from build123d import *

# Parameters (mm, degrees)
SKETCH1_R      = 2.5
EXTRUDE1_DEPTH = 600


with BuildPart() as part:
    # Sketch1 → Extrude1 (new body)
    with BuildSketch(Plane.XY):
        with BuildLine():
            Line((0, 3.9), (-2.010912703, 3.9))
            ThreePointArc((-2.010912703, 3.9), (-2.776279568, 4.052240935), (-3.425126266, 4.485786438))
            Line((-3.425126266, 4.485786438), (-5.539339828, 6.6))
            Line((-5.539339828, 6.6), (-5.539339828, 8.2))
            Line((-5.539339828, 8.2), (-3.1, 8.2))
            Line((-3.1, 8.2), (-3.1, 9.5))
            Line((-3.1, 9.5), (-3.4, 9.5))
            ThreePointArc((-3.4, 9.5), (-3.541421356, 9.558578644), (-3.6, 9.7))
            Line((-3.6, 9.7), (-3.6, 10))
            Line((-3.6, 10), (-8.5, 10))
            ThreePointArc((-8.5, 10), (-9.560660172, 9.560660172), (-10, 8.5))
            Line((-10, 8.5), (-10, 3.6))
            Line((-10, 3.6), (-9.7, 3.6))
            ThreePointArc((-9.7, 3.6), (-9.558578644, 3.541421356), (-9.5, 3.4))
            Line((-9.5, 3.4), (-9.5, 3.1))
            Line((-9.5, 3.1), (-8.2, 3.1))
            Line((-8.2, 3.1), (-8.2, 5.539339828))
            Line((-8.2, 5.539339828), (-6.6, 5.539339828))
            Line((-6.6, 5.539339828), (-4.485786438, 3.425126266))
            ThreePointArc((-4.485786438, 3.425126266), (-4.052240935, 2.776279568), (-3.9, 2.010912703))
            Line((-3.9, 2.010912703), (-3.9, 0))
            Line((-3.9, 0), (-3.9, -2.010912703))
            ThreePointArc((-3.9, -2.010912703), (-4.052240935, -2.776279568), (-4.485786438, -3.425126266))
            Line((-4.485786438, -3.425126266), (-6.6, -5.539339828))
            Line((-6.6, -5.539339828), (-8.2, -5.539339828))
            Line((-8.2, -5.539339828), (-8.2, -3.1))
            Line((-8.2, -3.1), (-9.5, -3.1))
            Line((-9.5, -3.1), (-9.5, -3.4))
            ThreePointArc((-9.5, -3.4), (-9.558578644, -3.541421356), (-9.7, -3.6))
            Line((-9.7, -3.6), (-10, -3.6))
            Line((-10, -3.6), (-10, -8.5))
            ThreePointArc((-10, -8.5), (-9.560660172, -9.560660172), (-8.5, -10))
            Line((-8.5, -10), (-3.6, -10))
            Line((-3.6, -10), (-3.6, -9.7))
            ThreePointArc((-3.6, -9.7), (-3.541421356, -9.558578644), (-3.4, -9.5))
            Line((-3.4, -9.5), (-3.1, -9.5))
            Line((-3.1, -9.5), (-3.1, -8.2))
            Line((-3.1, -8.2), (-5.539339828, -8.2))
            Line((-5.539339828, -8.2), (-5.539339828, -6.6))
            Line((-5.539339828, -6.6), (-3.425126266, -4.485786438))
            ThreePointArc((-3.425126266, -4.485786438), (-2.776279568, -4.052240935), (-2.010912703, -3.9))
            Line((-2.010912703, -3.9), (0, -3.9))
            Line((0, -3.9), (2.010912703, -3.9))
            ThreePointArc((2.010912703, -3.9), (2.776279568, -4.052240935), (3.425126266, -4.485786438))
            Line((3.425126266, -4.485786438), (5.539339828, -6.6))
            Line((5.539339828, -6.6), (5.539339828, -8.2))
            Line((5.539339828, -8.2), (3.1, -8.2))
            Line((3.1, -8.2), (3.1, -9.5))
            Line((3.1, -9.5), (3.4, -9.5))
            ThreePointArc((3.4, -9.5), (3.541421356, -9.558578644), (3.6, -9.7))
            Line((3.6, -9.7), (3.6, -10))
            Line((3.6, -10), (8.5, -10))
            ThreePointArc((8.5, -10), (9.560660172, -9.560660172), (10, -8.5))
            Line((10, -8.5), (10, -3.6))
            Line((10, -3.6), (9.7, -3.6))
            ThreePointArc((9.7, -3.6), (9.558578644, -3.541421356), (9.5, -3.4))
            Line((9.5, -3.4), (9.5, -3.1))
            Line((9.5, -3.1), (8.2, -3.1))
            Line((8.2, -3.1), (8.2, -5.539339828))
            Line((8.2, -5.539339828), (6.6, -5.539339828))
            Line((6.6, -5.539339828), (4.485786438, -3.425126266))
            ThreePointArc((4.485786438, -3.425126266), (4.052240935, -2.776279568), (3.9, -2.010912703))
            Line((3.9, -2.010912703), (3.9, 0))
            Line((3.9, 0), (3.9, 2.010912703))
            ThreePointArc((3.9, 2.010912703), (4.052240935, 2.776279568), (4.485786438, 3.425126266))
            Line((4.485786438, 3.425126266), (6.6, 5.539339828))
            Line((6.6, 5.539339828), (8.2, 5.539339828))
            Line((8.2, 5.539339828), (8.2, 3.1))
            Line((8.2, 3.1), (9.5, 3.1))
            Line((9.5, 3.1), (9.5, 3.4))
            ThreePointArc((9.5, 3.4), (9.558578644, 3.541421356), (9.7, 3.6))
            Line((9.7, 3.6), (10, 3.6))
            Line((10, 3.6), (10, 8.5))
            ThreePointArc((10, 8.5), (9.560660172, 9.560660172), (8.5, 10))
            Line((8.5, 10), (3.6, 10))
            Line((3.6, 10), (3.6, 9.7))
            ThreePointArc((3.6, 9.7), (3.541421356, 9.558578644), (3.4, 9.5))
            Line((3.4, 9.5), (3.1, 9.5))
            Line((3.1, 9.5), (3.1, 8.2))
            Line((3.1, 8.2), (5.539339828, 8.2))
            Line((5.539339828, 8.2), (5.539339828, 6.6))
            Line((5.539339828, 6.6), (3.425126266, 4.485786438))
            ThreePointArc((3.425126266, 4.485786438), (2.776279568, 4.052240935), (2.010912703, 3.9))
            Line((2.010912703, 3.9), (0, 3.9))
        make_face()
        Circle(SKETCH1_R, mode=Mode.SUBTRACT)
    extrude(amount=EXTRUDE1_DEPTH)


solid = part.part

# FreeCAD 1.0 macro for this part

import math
import FreeCAD as App
import Part
import Sketcher
from FreeCAD import Vector
Q = App.Units.Quantity

doc = App.newDocument("Part")
body = doc.addObject("PartDesign::Body", "Body")

sketch1 = body.newObject("Sketcher::SketchObject", "Sketch")
sketch1.AttachmentSupport = (doc.getObject("XY_Plane"), [""])
sketch1.MapMode = "FlatFace"
sketch1.addGeometry([
    Part.ArcOfCircle(Part.Circle(Vector(-2.01, 5.9, 0), Vector(0, 0, 1), 2), math.radians(-135), math.radians(-90)),
    Part.LineSegment(Vector(-3.43, 4.49, 0), Vector(-5.54, 6.6, 0)),
    Part.LineSegment(Vector(-5.54, 6.6, 0), Vector(-5.54, 8.2, 0)),
    Part.LineSegment(Vector(-5.54, 8.2, 0), Vector(-3.1, 8.2, 0)),
    Part.LineSegment(Vector(-3.1, 8.2, 0), Vector(-3.1, 9.5, 0)),
    Part.LineSegment(Vector(-3.1, 9.5, 0), Vector(-3.4, 9.5, 0)),
    Part.ArcOfCircle(Part.Circle(Vector(-3.4, 9.7, 0), Vector(0, 0, 1), 0.2), math.radians(-180), math.radians(-90)),
    Part.LineSegment(Vector(-3.6, 9.7, 0), Vector(-3.6, 10, 0)),
    Part.LineSegment(Vector(-3.6, 10, 0), Vector(-8.5, 10, 0)),
    Part.ArcOfCircle(Part.Circle(Vector(-8.5, 8.5, 0), Vector(0, 0, 1), 1.5), math.radians(90), math.radians(180)),
    Part.LineSegment(Vector(-10, 8.5, 0), Vector(-10, 3.6, 0)),
    Part.LineSegment(Vector(-10, 3.6, 0), Vector(-9.7, 3.6, 0)),
    Part.ArcOfCircle(Part.Circle(Vector(-9.7, 3.4, 0), Vector(0, 0, 1), 0.2), math.radians(0), math.radians(90)),
    Part.LineSegment(Vector(-9.5, 3.4, 0), Vector(-9.5, 3.1, 0)),
    Part.LineSegment(Vector(-9.5, 3.1, 0), Vector(-8.2, 3.1, 0)),
    Part.LineSegment(Vector(-8.2, 3.1, 0), Vector(-8.2, 5.54, 0)),
    Part.LineSegment(Vector(-8.2, 5.54, 0), Vector(-6.6, 5.54, 0)),
    Part.LineSegment(Vector(-6.6, 5.54, 0), Vector(-4.49, 3.43, 0)),
    Part.ArcOfCircle(Part.Circle(Vector(-5.9, 2.01, 0), Vector(0, 0, 1), 2), math.radians(0), math.radians(45)),
    Part.LineSegment(Vector(-3.9, 2.01, 0), Vector(-3.9, -2.01, 0)),
    Part.ArcOfCircle(Part.Circle(Vector(-5.9, -2.01, 0), Vector(0, 0, 1), 2), math.radians(-45), math.radians(0)),
    Part.LineSegment(Vector(-4.49, -3.43, 0), Vector(-6.6, -5.54, 0)),
    Part.LineSegment(Vector(-6.6, -5.54, 0), Vector(-8.2, -5.54, 0)),
    Part.LineSegment(Vector(-8.2, -5.54, 0), Vector(-8.2, -3.1, 0)),
    Part.LineSegment(Vector(-8.2, -3.1, 0), Vector(-9.5, -3.1, 0)),
    Part.LineSegment(Vector(-9.5, -3.1, 0), Vector(-9.5, -3.4, 0)),
    Part.ArcOfCircle(Part.Circle(Vector(-9.7, -3.4, 0), Vector(0, 0, 1), 0.2), math.radians(-90), math.radians(0)),
    Part.LineSegment(Vector(-9.7, -3.6, 0), Vector(-10, -3.6, 0)),
    Part.LineSegment(Vector(-10, -3.6, 0), Vector(-10, -8.5, 0)),
    Part.ArcOfCircle(Part.Circle(Vector(-8.5, -8.5, 0), Vector(0, 0, 1), 1.5), math.radians(180), math.radians(270)),
    Part.LineSegment(Vector(-8.5, -10, 0), Vector(-3.6, -10, 0)),
    Part.LineSegment(Vector(-3.6, -10, 0), Vector(-3.6, -9.7, 0)),
    Part.ArcOfCircle(Part.Circle(Vector(-3.4, -9.7, 0), Vector(0, 0, 1), 0.2), math.radians(90), math.radians(180)),
    Part.LineSegment(Vector(-3.4, -9.5, 0), Vector(-3.1, -9.5, 0)),
    Part.LineSegment(Vector(-3.1, -9.5, 0), Vector(-3.1, -8.2, 0)),
    Part.LineSegment(Vector(-3.1, -8.2, 0), Vector(-5.54, -8.2, 0)),
    Part.LineSegment(Vector(-5.54, -8.2, 0), Vector(-5.54, -6.6, 0)),
    Part.LineSegment(Vector(-5.54, -6.6, 0), Vector(-3.43, -4.49, 0)),
    Part.ArcOfCircle(Part.Circle(Vector(-2.01, -5.9, 0), Vector(0, 0, 1), 2), math.radians(90), math.radians(135)),
    Part.LineSegment(Vector(-2.01, -3.9, 0), Vector(2.01, -3.9, 0)),
    Part.ArcOfCircle(Part.Circle(Vector(2.01, -5.9, 0), Vector(0, 0, 1), 2), math.radians(45), math.radians(90)),
    Part.LineSegment(Vector(3.43, -4.49, 0), Vector(5.54, -6.6, 0)),
    Part.LineSegment(Vector(5.54, -6.6, 0), Vector(5.54, -8.2, 0)),
    Part.LineSegment(Vector(5.54, -8.2, 0), Vector(3.1, -8.2, 0)),
    Part.LineSegment(Vector(3.1, -8.2, 0), Vector(3.1, -9.5, 0)),
    Part.LineSegment(Vector(3.1, -9.5, 0), Vector(3.4, -9.5, 0)),
    Part.ArcOfCircle(Part.Circle(Vector(3.4, -9.7, 0), Vector(0, 0, 1), 0.2), math.radians(0), math.radians(90)),
    Part.LineSegment(Vector(3.6, -9.7, 0), Vector(3.6, -10, 0)),
    Part.LineSegment(Vector(3.6, -10, 0), Vector(8.5, -10, 0)),
    Part.ArcOfCircle(Part.Circle(Vector(8.5, -8.5, 0), Vector(0, 0, 1), 1.5), math.radians(-90), math.radians(0)),
    Part.LineSegment(Vector(10, -8.5, 0), Vector(10, -3.6, 0)),
    Part.LineSegment(Vector(10, -3.6, 0), Vector(9.7, -3.6, 0)),
    Part.ArcOfCircle(Part.Circle(Vector(9.7, -3.4, 0), Vector(0, 0, 1), 0.2), math.radians(-180), math.radians(-90)),
    Part.LineSegment(Vector(9.5, -3.4, 0), Vector(9.5, -3.1, 0)),
    Part.LineSegment(Vector(9.5, -3.1, 0), Vector(8.2, -3.1, 0)),
    Part.LineSegment(Vector(8.2, -3.1, 0), Vector(8.2, -5.54, 0)),
    Part.LineSegment(Vector(8.2, -5.54, 0), Vector(6.6, -5.54, 0)),
    Part.LineSegment(Vector(6.6, -5.54, 0), Vector(4.49, -3.43, 0)),
    Part.ArcOfCircle(Part.Circle(Vector(5.9, -2.01, 0), Vector(0, 0, 1), 2), math.radians(180), math.radians(225)),
    Part.LineSegment(Vector(3.9, -2.01, 0), Vector(3.9, 2.01, 0)),
    Part.ArcOfCircle(Part.Circle(Vector(5.9, 2.01, 0), Vector(0, 0, 1), 2), math.radians(135), math.radians(180)),
    Part.LineSegment(Vector(4.49, 3.43, 0), Vector(6.6, 5.54, 0)),
    Part.LineSegment(Vector(6.6, 5.54, 0), Vector(8.2, 5.54, 0)),
    Part.LineSegment(Vector(8.2, 5.54, 0), Vector(8.2, 3.1, 0)),
    Part.LineSegment(Vector(8.2, 3.1, 0), Vector(9.5, 3.1, 0)),
    Part.LineSegment(Vector(9.5, 3.1, 0), Vector(9.5, 3.4, 0)),
    Part.ArcOfCircle(Part.Circle(Vector(9.7, 3.4, 0), Vector(0, 0, 1), 0.2), math.radians(90), math.radians(180)),
    Part.LineSegment(Vector(9.7, 3.6, 0), Vector(10, 3.6, 0)),
    Part.LineSegment(Vector(10, 3.6, 0), Vector(10, 8.5, 0)),
    Part.ArcOfCircle(Part.Circle(Vector(8.5, 8.5, 0), Vector(0, 0, 1), 1.5), math.radians(0), math.radians(90)),
    Part.LineSegment(Vector(8.5, 10, 0), Vector(3.6, 10, 0)),
    Part.LineSegment(Vector(3.6, 10, 0), Vector(3.6, 9.7, 0)),
    Part.ArcOfCircle(Part.Circle(Vector(3.4, 9.7, 0), Vector(0, 0, 1), 0.2), math.radians(-90), math.radians(0)),
    Part.LineSegment(Vector(3.4, 9.5, 0), Vector(3.1, 9.5, 0)),
    Part.LineSegment(Vector(3.1, 9.5, 0), Vector(3.1, 8.2, 0)),
    Part.LineSegment(Vector(3.1, 8.2, 0), Vector(5.54, 8.2, 0)),
    Part.LineSegment(Vector(5.54, 8.2, 0), Vector(5.54, 6.6, 0)),
    Part.LineSegment(Vector(5.54, 6.6, 0), Vector(3.43, 4.49, 0)),
    Part.ArcOfCircle(Part.Circle(Vector(2.01, 5.9, 0), Vector(0, 0, 1), 2), math.radians(-90), math.radians(-45)),
    Part.LineSegment(Vector(2.01, 3.9, 0), Vector(-2.01, 3.9, 0)),
    Part.Circle(Vector(0, 0, 0), Vector(0, 0, 1), 2.5),
], False)
sketch1.addConstraint([
    Sketcher.Constraint("Tangent", 0, 1, 1, 1),
    Sketcher.Constraint("Coincident", 1, 2, 2, 1),
    Sketcher.Constraint("Coincident", 2, 2, 3, 1),
    Sketcher.Constraint("Coincident", 3, 2, 4, 1),
    Sketcher.Constraint("Coincident", 4, 2, 5, 1),
    Sketcher.Constraint("Tangent", 5, 2, 6, 2),
    Sketcher.Constraint("Tangent", 6, 1, 7, 1),
    Sketcher.Constraint("Coincident", 7, 2, 8, 1),
    Sketcher.Constraint("Tangent", 8, 2, 9, 1),
    Sketcher.Constraint("Tangent", 9, 2, 10, 1),
    Sketcher.Constraint("Coincident", 10, 2, 11, 1),
    Sketcher.Constraint("Tangent", 11, 2, 12, 2),
    Sketcher.Constraint("Tangent", 12, 1, 13, 1),
    Sketcher.Constraint("Coincident", 13, 2, 14, 1),
    Sketcher.Constraint("Coincident", 14, 2, 15, 1),
    Sketcher.Constraint("Coincident", 15, 2, 16, 1),
    Sketcher.Constraint("Coincident", 16, 2, 17, 1),
    Sketcher.Constraint("Tangent", 17, 2, 18, 2),
    Sketcher.Constraint("Tangent", 18, 1, 19, 1),
    Sketcher.Constraint("Tangent", 19, 2, 20, 2),
    Sketcher.Constraint("Tangent", 20, 1, 21, 1),
    Sketcher.Constraint("Coincident", 21, 2, 22, 1),
    Sketcher.Constraint("Coincident", 22, 2, 23, 1),
    Sketcher.Constraint("Coincident", 23, 2, 24, 1),
    Sketcher.Constraint("Coincident", 24, 2, 25, 1),
    Sketcher.Constraint("Tangent", 25, 2, 26, 2),
    Sketcher.Constraint("Tangent", 26, 1, 27, 1),
    Sketcher.Constraint("Coincident", 27, 2, 28, 1),
    Sketcher.Constraint("Tangent", 28, 2, 29, 1),
    Sketcher.Constraint("Tangent", 29, 2, 30, 1),
    Sketcher.Constraint("Coincident", 30, 2, 31, 1),
    Sketcher.Constraint("Tangent", 31, 2, 32, 2),
    Sketcher.Constraint("Tangent", 32, 1, 33, 1),
    Sketcher.Constraint("Coincident", 33, 2, 34, 1),
    Sketcher.Constraint("Coincident", 34, 2, 35, 1),
    Sketcher.Constraint("Coincident", 35, 2, 36, 1),
    Sketcher.Constraint("Coincident", 36, 2, 37, 1),
    Sketcher.Constraint("Tangent", 37, 2, 38, 2),
    Sketcher.Constraint("Tangent", 38, 1, 39, 1),
    Sketcher.Constraint("Tangent", 39, 2, 40, 2),
    Sketcher.Constraint("Tangent", 40, 1, 41, 1),
    Sketcher.Constraint("Coincident", 41, 2, 42, 1),
    Sketcher.Constraint("Coincident", 42, 2, 43, 1),
    Sketcher.Constraint("Coincident", 43, 2, 44, 1),
    Sketcher.Constraint("Coincident", 44, 2, 45, 1),
    Sketcher.Constraint("Tangent", 45, 2, 46, 2),
    Sketcher.Constraint("Tangent", 46, 1, 47, 1),
    Sketcher.Constraint("Coincident", 47, 2, 48, 1),
    Sketcher.Constraint("Tangent", 48, 2, 49, 1),
    Sketcher.Constraint("Tangent", 49, 2, 50, 1),
    Sketcher.Constraint("Coincident", 50, 2, 51, 1),
    Sketcher.Constraint("Tangent", 51, 2, 52, 2),
    Sketcher.Constraint("Tangent", 52, 1, 53, 1),
    Sketcher.Constraint("Coincident", 53, 2, 54, 1),
    Sketcher.Constraint("Coincident", 54, 2, 55, 1),
    Sketcher.Constraint("Coincident", 55, 2, 56, 1),
    Sketcher.Constraint("Coincident", 56, 2, 57, 1),
    Sketcher.Constraint("Tangent", 57, 2, 58, 2),
    Sketcher.Constraint("Tangent", 58, 1, 59, 1),
    Sketcher.Constraint("Tangent", 59, 2, 60, 2),
    Sketcher.Constraint("Tangent", 60, 1, 61, 1),
    Sketcher.Constraint("Coincident", 61, 2, 62, 1),
    Sketcher.Constraint("Coincident", 62, 2, 63, 1),
    Sketcher.Constraint("Coincident", 63, 2, 64, 1),
    Sketcher.Constraint("Coincident", 64, 2, 65, 1),
    Sketcher.Constraint("Tangent", 65, 2, 66, 2),
    Sketcher.Constraint("Tangent", 66, 1, 67, 1),
    Sketcher.Constraint("Coincident", 67, 2, 68, 1),
    Sketcher.Constraint("Tangent", 68, 2, 69, 1),
    Sketcher.Constraint("Tangent", 69, 2, 70, 1),
    Sketcher.Constraint("Coincident", 70, 2, 71, 1),
    Sketcher.Constraint("Tangent", 71, 2, 72, 2),
    Sketcher.Constraint("Tangent", 72, 1, 73, 1),
    Sketcher.Constraint("Coincident", 73, 2, 74, 1),
    Sketcher.Constraint("Coincident", 74, 2, 75, 1),
    Sketcher.Constraint("Coincident", 75, 2, 76, 1),
    Sketcher.Constraint("Coincident", 76, 2, 77, 1),
    Sketcher.Constraint("Tangent", 77, 2, 78, 2),
    Sketcher.Constraint("Tangent", 78, 1, 79, 1),
    Sketcher.Constraint("Tangent", 79, 2, 0, 2),
    Sketcher.Constraint("Vertical", 2),
    Sketcher.Constraint("Horizontal", 3),
    Sketcher.Constraint("Vertical", 4),
    Sketcher.Constraint("Horizontal", 5),
    Sketcher.Constraint("Vertical", 7),
    Sketcher.Constraint("Horizontal", 8),
    Sketcher.Constraint("Vertical", 10),
    Sketcher.Constraint("Horizontal", 11),
    Sketcher.Constraint("Vertical", 13),
    Sketcher.Constraint("Horizontal", 14),
    Sketcher.Constraint("Vertical", 15),
    Sketcher.Constraint("Horizontal", 16),
    Sketcher.Constraint("Vertical", 19),
    Sketcher.Constraint("Horizontal", 22),
    Sketcher.Constraint("Vertical", 23),
    Sketcher.Constraint("Horizontal", 24),
    Sketcher.Constraint("Vertical", 25),
    Sketcher.Constraint("Horizontal", 27),
    Sketcher.Constraint("Vertical", 28),
    Sketcher.Constraint("Horizontal", 30),
    Sketcher.Constraint("Vertical", 31),
    Sketcher.Constraint("Horizontal", 33),
    Sketcher.Constraint("Vertical", 34),
    Sketcher.Constraint("Horizontal", 35),
    Sketcher.Constraint("Vertical", 36),
    Sketcher.Constraint("Horizontal", 39),
    Sketcher.Constraint("Vertical", 42),
    Sketcher.Constraint("Horizontal", 43),
    Sketcher.Constraint("Vertical", 44),
    Sketcher.Constraint("Horizontal", 45),
    Sketcher.Constraint("Vertical", 47),
    Sketcher.Constraint("Horizontal", 48),
    Sketcher.Constraint("Vertical", 50),
    Sketcher.Constraint("Horizontal", 51),
    Sketcher.Constraint("Vertical", 53),
    Sketcher.Constraint("Horizontal", 54),
    Sketcher.Constraint("Vertical", 55),
    Sketcher.Constraint("Horizontal", 56),
    Sketcher.Constraint("Vertical", 59),
    Sketcher.Constraint("Horizontal", 62),
    Sketcher.Constraint("Vertical", 63),
    Sketcher.Constraint("Horizontal", 64),
    Sketcher.Constraint("Vertical", 65),
    Sketcher.Constraint("Horizontal", 67),
    Sketcher.Constraint("Vertical", 68),
    Sketcher.Constraint("Horizontal", 70),
    Sketcher.Constraint("Vertical", 71),
    Sketcher.Constraint("Horizontal", 73),
    Sketcher.Constraint("Vertical", 74),
    Sketcher.Constraint("Horizontal", 75),
    Sketcher.Constraint("Vertical", 76),
    Sketcher.Constraint("Horizontal", 79),
    Sketcher.Constraint("Coincident", 80, 3, -1, 1),
    Sketcher.Constraint("Equal", 6, 12),
    Sketcher.Constraint("Equal", 0, 18),
    Sketcher.Constraint("Equal", 18, 20),
    Sketcher.Constraint("Equal", 12, 26),
    Sketcher.Constraint("Equal", 9, 29),
    Sketcher.Constraint("Equal", 26, 32),
    Sketcher.Constraint("Equal", 20, 38),
    Sketcher.Constraint("Equal", 38, 40),
    Sketcher.Constraint("Equal", 32, 46),
    Sketcher.Constraint("Equal", 29, 49),
    Sketcher.Constraint("Equal", 46, 52),
    Sketcher.Constraint("Equal", 40, 58),
    Sketcher.Constraint("Equal", 58, 60),
    Sketcher.Constraint("Equal", 52, 66),
    Sketcher.Constraint("Equal", 49, 69),
    Sketcher.Constraint("Equal", 66, 72),
    Sketcher.Constraint("Equal", 60, 78),
    Sketcher.Constraint("Symmetric", 0, 3, 40, 3, -1, 1),
    Sketcher.Constraint("Symmetric", 6, 3, 46, 3, -1, 1),
    Sketcher.Constraint("Symmetric", 9, 3, 49, 3, -1, 1),
    Sketcher.Constraint("Symmetric", 12, 3, 52, 3, -1, 1),
    Sketcher.Constraint("Symmetric", 18, 3, 58, 3, -1, 1),
    Sketcher.Constraint("Symmetric", 26, 3, 66, 3, -1, 1),
    Sketcher.Constraint("Symmetric", 29, 3, 69, 3, -1, 1),
    Sketcher.Constraint("Symmetric", 32, 3, 72, 3, -1, 1),
    Sketcher.Constraint("Symmetric", 1, 2, 41, 2, -1, 1),
    Sketcher.Constraint("Symmetric", 3, 2, 43, 2, -1, 1),
    Sketcher.Constraint("Symmetric", 14, 2, 54, 2, -1, 1),
    Sketcher.Constraint("Symmetric", 16, 2, 56, 2, -1, 1),
    Sketcher.Constraint("Symmetric", 20, 1, 60, 1, -1, 1),
    Sketcher.Constraint("Symmetric", 22, 2, 62, 2, -1, 1),
    Sketcher.Constraint("Symmetric", 34, 2, 74, 2, -1, 1),
    Sketcher.Constraint("Symmetric", 36, 2, 76, 2, -1, 1),
    Sketcher.Constraint("Symmetric", 32, 3, 46, 3, -2),
    Sketcher.Constraint("Symmetric", 29, 3, 49, 3, -2),
    Sketcher.Constraint("Symmetric", 26, 3, 52, 3, -2),
    Sketcher.Constraint("Symmetric", 37, 2, 40, 1, -2),
    Sketcher.Constraint("Symmetric", 35, 2, 42, 2, -2),
    Sketcher.Constraint("Symmetric", 23, 2, 54, 2, -2),
    Sketcher.Constraint("Symmetric", 21, 2, 56, 2, -2),
    Sketcher.Constraint("Parallel", 1, 17),
    Sketcher.Constraint("Perpendicular", 17, 21),
    Sketcher.Constraint("Parallel", 21, 37),
    Sketcher.Constraint("Parallel", 61, 77),
    Sketcher.Constraint("Horizontal", 14, 2, 63, 2),
    Sketcher.Constraint("Vertical", 4, 2, 33, 2),
    Sketcher.Constraint("Equal", 5, 11),
    Sketcher.Constraint("Equal", 62, 2),
    Sketcher.Constraint("Equal", 64, 4),
    Sketcher.Constraint("Equal", 73, 7),
    Sketcher.Constraint("Equal", 70, 10),
    Sketcher.Constraint("Equal", 7, 13),
    Sketcher.Constraint("Equal", 75, 15),
    Sketcher.Constraint("Equal", 79, 19),
    Sketcher.Constraint("Equal", 1, 17),
    Sketcher.Constraint("Diameter", 80, Q("5 mm")),
    Sketcher.Constraint("Radius", 0, Q("2 mm")),
    Sketcher.Constraint("Radius", 6, Q("0.2 mm")),
    Sketcher.Constraint("Radius", 9, Q("1.5 mm")),
    Sketcher.Constraint("DistanceX", 5, 2, 5, 1, Q("0.3 mm")),
    Sketcher.Constraint("DistanceX", 8, 2, 8, 1, Q("4.9 mm")),
    Sketcher.Constraint("DistanceX", 14, 1, 14, 2, Q("1.3 mm")),
    Sketcher.Constraint("DistanceX", 16, 1, 16, 2, Q("1.6 mm")),
    Sketcher.Constraint("DistanceY", -1, 1, 7, 2, Q("10 mm")),
    Sketcher.Constraint("DistanceY", -1, 1, 0, 3, Q("5.9 mm")),
    Sketcher.Constraint("DistanceX", 3, 1, 3, 2, Q("2.43934 mm")),
])
pad1 = body.newObject("PartDesign::Pad", "Pad")
pad1.Profile = sketch1
pad1.Length = 600

doc.recompute()
